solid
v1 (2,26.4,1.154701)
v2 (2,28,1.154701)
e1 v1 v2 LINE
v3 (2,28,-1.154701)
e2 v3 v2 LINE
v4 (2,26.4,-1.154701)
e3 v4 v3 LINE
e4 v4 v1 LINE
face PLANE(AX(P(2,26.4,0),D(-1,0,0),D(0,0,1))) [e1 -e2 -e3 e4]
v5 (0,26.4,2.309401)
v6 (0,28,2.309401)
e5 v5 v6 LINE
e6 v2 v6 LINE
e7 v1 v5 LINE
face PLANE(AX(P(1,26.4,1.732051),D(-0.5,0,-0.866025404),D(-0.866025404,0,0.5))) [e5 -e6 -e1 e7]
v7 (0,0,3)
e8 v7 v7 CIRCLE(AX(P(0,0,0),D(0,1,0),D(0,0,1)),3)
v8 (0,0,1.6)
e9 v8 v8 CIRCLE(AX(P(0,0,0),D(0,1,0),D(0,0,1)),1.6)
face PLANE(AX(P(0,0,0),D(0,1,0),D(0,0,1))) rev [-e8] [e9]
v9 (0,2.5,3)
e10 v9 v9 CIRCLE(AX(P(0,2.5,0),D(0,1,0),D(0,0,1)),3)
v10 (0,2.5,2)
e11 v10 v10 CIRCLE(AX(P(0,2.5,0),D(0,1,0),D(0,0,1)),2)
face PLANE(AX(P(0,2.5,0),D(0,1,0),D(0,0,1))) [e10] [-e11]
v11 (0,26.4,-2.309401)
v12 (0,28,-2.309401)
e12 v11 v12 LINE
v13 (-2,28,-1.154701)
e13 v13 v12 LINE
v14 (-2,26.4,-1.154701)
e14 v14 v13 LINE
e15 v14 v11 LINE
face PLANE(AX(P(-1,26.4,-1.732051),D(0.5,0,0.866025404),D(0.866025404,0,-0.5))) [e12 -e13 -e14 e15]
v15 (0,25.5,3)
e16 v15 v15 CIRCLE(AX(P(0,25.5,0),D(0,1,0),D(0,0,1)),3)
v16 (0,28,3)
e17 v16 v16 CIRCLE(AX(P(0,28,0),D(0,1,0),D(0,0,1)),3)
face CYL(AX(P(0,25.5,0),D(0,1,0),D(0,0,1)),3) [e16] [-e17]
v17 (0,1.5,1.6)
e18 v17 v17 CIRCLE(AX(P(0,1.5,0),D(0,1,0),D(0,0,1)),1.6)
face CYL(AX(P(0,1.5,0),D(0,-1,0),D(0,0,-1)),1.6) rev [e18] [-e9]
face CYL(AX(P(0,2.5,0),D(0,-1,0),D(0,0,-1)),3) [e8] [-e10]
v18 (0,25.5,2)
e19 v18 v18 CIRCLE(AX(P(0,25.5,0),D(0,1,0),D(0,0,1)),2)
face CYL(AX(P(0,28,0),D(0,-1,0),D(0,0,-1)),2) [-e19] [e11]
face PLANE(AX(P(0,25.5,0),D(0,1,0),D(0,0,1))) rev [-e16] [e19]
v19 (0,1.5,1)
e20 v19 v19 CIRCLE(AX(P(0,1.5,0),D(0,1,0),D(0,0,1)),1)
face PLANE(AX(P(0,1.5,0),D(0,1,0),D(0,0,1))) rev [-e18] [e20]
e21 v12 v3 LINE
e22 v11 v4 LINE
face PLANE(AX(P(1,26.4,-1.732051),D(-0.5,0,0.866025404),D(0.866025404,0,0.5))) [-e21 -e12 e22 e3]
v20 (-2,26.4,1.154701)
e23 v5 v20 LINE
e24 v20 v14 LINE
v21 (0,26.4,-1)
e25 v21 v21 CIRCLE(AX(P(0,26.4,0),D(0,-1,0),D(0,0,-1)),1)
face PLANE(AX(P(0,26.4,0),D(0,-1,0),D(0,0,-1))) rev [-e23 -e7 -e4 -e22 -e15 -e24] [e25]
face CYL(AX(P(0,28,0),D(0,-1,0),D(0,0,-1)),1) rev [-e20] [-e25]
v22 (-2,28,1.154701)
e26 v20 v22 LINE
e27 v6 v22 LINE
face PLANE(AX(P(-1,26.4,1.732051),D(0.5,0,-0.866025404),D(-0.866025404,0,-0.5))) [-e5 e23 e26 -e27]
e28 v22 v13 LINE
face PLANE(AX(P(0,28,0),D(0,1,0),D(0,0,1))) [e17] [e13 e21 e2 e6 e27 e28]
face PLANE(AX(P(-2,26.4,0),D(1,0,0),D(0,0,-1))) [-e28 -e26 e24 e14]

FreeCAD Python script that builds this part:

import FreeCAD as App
import Part
import Sketcher
Q = App.Units.Quantity


def add_polygon(sketch, points):
    """Adds a closed chain of lines whose ends are joined by coincident constraints."""
    first, n = sketch.GeometryCount, len(points)
    for a, b in zip(points, points[1:] + points[:1]):
        sketch.addGeometry(Part.LineSegment(App.Vector(*a, 0), App.Vector(*b, 0)), False)
    for i in range(n):
        sketch.addConstraint(Sketcher.Constraint("Coincident", first + i, 2, first + (i + 1) % n, 1))

doc = App.newDocument("Part")
params = doc.addObject("Spreadsheet::Sheet", "Params")
for row, (alias, value) in enumerate([
    ("sketch1_diameter", "4 mm"),
    ("sketch1_diameter2", "2 mm"),
    ("pad1_length", "28 mm"),
    ("sketch2_diameter", "6 mm"),
    ("sketch2_diameter2", "4 mm"),
    ("pad2_length", "2.5 mm"),
    ("sketch3_diameter", "6 mm"),
    ("sketch3_diameter2", "4 mm"),
    ("pad3_length", "2.5 mm"),
    ("sketch4_diameter", "3.2 mm"),
    ("pocket1_length", "1.5 mm"),
    ("pocket2_length", "1.6 mm"),
], start=1):
    params.set(f"A{row}", alias)
    params.set(f"B{row}", "=" + value)
    params.setAlias(f"B{row}", alias)

body = doc.addObject("PartDesign::Body", "Body")

sketch1 = doc.addObject("Sketcher::SketchObject", "Sketch")
body.addObject(sketch1)
sketch1.AttachmentSupport = (doc.XZ_Plane, [""])
sketch1.MapMode = "FlatFace"
sketch1.addGeometry([
    Part.Circle(App.Vector(0, 0, 0), App.Vector(0, 0, 1), 2),
    Part.Circle(App.Vector(0, 0, 0), App.Vector(0, 0, 1), 1),
], False)
sketch1.addConstraint([
    Sketcher.Constraint("Coincident", 0, 3, -1, 1),
    Sketcher.Constraint("Coincident", 1, 3, -1, 1),
    Sketcher.Constraint("Diameter", 0, 4.0),
    Sketcher.Constraint("Diameter", 1, 2.0),
])
sketch1.setExpression("Constraints[2]", "Params.sketch1_diameter")
sketch1.setExpression("Constraints[3]", "Params.sketch1_diameter2")
pad1 = doc.addObject("PartDesign::Pad", "Pad")
body.addObject(pad1)
pad1.Profile = sketch1
pad1.setExpression("Length", "Params.pad1_length")
pad1.Reversed = True

sketch2 = doc.addObject("Sketcher::SketchObject", "Sketch001")
body.addObject(sketch2)
sketch2.AttachmentSupport = (doc.XZ_Plane, [""])
sketch2.MapMode = "FlatFace"
sketch2.addGeometry([
    Part.Circle(App.Vector(0, 0, 0), App.Vector(0, 0, 1), 3),
    Part.Circle(App.Vector(0, 0, 0), App.Vector(0, 0, 1), 2),
], False)
sketch2.addConstraint([
    Sketcher.Constraint("Coincident", 0, 3, -1, 1),
    Sketcher.Constraint("Coincident", 1, 3, -1, 1),
    Sketcher.Constraint("Diameter", 0, 6.0),
    Sketcher.Constraint("Diameter", 1, 4.0),
])
sketch2.setExpression("Constraints[2]", "Params.sketch2_diameter")
sketch2.setExpression("Constraints[3]", "Params.sketch2_diameter2")
pad2 = doc.addObject("PartDesign::Pad", "Pad001")
body.addObject(pad2)
pad2.Profile = sketch2
pad2.setExpression("Length", "Params.pad2_length")
pad2.Reversed = True

sketch3 = doc.addObject("Sketcher::SketchObject", "Sketch002")
body.addObject(sketch3)
sketch3.AttachmentSupport = (doc.XZ_Plane, [""])
sketch3.MapMode = "FlatFace"
sketch3.AttachmentOffset = App.Placement(App.Vector(0, 0, -25.5), App.Rotation())
sketch3.addGeometry([
    Part.Circle(App.Vector(0, 0, 0), App.Vector(0, 0, 1), 3),
    Part.Circle(App.Vector(0, 0, 0), App.Vector(0, 0, 1), 2),
], False)
sketch3.addConstraint([
    Sketcher.Constraint("Coincident", 0, 3, -1, 1),
    Sketcher.Constraint("Coincident", 1, 3, -1, 1),
    Sketcher.Constraint("Diameter", 0, 6.0),
    Sketcher.Constraint("Diameter", 1, 4.0),
])
sketch3.setExpression("Constraints[2]", "Params.sketch3_diameter")
sketch3.setExpression("Constraints[3]", "Params.sketch3_diameter2")
pad3 = doc.addObject("PartDesign::Pad", "Pad002")
body.addObject(pad3)
pad3.Profile = sketch3
pad3.setExpression("Length", "Params.pad3_length")
pad3.Reversed = True

sketch4 = doc.addObject("Sketcher::SketchObject", "Sketch003")
body.addObject(sketch4)
sketch4.AttachmentSupport = (doc.XZ_Plane, [""])
sketch4.MapMode = "FlatFace"
sketch4.addGeometry(Part.Circle(App.Vector(0, 0, 0), App.Vector(0, 0, 1), 1.6), False)
sketch4.addConstraint([
    Sketcher.Constraint("Coincident", 0, 3, -1, 1),
    Sketcher.Constraint("Diameter", 0, 3.2),
])
sketch4.setExpression("Constraints[1]", "Params.sketch4_diameter")
pocket1 = doc.addObject("PartDesign::Pocket", "Pocket")
body.addObject(pocket1)
pocket1.Profile = sketch4
pocket1.setExpression("Length", "Params.pocket1_length")

sketch5 = doc.addObject("Sketcher::SketchObject", "Sketch004")
body.addObject(sketch5)
sketch5.AttachmentSupport = (doc.XZ_Plane, [""])
sketch5.MapMode = "FlatFace"
sketch5.AttachmentOffset = App.Placement(App.Vector(0, 0, -28), App.Rotation())
add_polygon(sketch5, [(0, 2.3), (2, 1.2), (2, -1.2), (0, -2.3), (-2, -1.2), (-2, 1.2)])
sketch5.addConstraint([
    Sketcher.Constraint("Vertical", 1),
    Sketcher.Constraint("Vertical", 4),
    Sketcher.Constraint("Symmetric", 0, 2, 3, 2, -1, 1),
    Sketcher.Constraint("Symmetric", 2, 2, 5, 2, -1, 1),
    Sketcher.Constraint("PointOnObject", 2, 2, -2),
    Sketcher.Constraint("Parallel", 2, 5),
    Sketcher.Constraint("Horizontal", 1, 2, 3, 2),
    Sketcher.Constraint("Angle", 0, Q("-30 deg")),
    Sketcher.Constraint("DistanceX", -1, 1, 0, 2, 2.0),
    Sketcher.Constraint("DistanceY", 1, 2, 1, 1, 2.309401),
])
pocket2 = doc.addObject("PartDesign::Pocket", "Pocket001")
body.addObject(pocket2)
pocket2.Profile = sketch5
pocket2.setExpression("Length", "Params.pocket2_length")
pocket2.Reversed = True

doc.recompute()
